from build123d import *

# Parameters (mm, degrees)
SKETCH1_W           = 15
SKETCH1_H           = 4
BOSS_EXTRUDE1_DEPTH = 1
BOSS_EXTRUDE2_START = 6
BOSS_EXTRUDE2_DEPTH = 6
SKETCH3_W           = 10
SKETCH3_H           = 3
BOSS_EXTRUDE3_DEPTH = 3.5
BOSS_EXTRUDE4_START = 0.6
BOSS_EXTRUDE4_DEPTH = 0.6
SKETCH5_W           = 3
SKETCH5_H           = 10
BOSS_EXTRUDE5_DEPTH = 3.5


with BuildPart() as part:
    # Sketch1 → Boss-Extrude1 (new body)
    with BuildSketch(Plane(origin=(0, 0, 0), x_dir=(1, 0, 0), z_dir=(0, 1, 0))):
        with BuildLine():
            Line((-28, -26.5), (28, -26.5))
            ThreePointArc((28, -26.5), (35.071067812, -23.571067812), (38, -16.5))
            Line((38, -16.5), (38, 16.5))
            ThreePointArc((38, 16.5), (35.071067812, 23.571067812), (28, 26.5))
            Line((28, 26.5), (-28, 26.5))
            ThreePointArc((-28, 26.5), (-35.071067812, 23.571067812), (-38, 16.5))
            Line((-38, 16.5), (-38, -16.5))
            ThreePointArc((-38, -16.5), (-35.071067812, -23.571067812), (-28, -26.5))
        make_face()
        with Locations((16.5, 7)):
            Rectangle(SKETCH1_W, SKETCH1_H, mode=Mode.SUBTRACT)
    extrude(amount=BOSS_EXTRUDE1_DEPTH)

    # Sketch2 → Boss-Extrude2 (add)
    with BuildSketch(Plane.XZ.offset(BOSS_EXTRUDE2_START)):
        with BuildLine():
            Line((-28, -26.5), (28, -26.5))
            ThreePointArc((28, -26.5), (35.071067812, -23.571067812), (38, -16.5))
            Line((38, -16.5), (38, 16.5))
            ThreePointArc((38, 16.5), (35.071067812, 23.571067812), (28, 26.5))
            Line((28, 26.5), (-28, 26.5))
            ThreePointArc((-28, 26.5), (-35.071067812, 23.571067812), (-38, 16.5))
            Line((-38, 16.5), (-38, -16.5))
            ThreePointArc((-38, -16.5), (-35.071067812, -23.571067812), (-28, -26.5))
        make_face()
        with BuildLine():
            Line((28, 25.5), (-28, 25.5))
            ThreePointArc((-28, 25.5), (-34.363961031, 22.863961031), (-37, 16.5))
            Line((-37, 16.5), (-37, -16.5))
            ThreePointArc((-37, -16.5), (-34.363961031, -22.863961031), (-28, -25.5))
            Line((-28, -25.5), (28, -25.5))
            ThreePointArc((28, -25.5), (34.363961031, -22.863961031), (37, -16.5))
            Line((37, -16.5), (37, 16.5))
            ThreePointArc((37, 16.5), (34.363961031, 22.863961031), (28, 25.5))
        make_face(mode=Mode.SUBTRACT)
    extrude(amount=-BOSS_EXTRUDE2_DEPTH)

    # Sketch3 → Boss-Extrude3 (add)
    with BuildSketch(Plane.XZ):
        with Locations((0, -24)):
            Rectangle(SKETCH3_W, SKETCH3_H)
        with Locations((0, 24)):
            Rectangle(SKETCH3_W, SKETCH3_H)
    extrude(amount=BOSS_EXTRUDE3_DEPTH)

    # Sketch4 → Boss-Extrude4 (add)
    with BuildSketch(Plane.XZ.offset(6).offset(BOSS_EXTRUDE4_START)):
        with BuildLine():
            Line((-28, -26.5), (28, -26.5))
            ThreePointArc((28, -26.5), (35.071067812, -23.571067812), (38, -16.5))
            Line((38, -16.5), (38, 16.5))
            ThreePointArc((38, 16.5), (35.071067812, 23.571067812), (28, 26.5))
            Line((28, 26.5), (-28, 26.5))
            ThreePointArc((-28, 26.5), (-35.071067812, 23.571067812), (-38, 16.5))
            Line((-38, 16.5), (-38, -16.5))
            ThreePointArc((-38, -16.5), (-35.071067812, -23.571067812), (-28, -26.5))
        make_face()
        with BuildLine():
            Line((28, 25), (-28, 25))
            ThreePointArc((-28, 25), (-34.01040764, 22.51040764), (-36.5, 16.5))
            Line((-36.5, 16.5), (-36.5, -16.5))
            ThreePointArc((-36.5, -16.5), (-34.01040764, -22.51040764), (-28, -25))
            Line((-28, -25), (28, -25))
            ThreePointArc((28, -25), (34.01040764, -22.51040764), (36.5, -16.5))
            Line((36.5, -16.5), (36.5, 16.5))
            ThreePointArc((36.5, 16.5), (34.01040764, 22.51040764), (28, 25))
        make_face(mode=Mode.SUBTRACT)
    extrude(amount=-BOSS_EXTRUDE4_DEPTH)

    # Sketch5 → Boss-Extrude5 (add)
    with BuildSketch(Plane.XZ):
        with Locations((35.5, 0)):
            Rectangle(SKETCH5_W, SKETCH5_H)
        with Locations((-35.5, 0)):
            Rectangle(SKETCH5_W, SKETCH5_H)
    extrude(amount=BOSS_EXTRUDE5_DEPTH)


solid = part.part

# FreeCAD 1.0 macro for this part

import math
import FreeCAD as App
import Part
import Sketcher
from FreeCAD import Vector
Q = App.Units.Quantity

doc = App.newDocument("Part")
body = doc.addObject("PartDesign::Body", "Body")

# Sketch on XZ plane
sketch1 = body.newObject("Sketcher::SketchObject", "Sketch")
sketch1.AttachmentSupport = (doc.getObject("XZ_Plane"), [""])
sketch1.MapMode = "FlatFace"
sketch1.addGeometry(Part.LineSegment(Vector(-28, 26.5, 0), Vector(28, 26.5, 0)), False)
sketch1.addGeometry(Part.ArcOfCircle(Part.Circle(Vector(28, 16.5, 0), Vector(0, 0, 1), 10), math.radians(0), math.radians(90)), False)
sketch1.addGeometry(Part.LineSegment(Vector(38, 16.5, 0), Vector(38, -16.5, 0)), False)
sketch1.addGeometry(Part.ArcOfCircle(Part.Circle(Vector(28, -16.5, 0), Vector(0, 0, 1), 10), math.radians(-90), math.radians(0)), False)
sketch1.addGeometry(Part.LineSegment(Vector(28, -26.5, 0), Vector(-28, -26.5, 0)), False)
sketch1.addGeometry(Part.ArcOfCircle(Part.Circle(Vector(-28, -16.5, 0), Vector(0, 0, 1), 10), math.radians(180), math.radians(270)), False)
sketch1.addGeometry(Part.LineSegment(Vector(-38, -16.5, 0), Vector(-38, 16.5, 0)), False)
sketch1.addGeometry(Part.ArcOfCircle(Part.Circle(Vector(-28, 16.5, 0), Vector(0, 0, 1), 10), math.radians(90), math.radians(180)), False)
sketch1.addGeometry(Part.LineSegment(Vector(24, -5, 0), Vector(9, -5, 0)), False)
sketch1.addGeometry(Part.LineSegment(Vector(9, -5, 0), Vector(9, -9, 0)), False)
sketch1.addGeometry(Part.LineSegment(Vector(9, -9, 0), Vector(24, -9, 0)), False)
sketch1.addGeometry(Part.LineSegment(Vector(24, -9, 0), Vector(24, -5, 0)), False)
sketch1.addConstraint(Sketcher.Constraint("Tangent", 0, 2, 1, 2))
sketch1.addConstraint(Sketcher.Constraint("Tangent", 1, 1, 2, 1))
sketch1.addConstraint(Sketcher.Constraint("Tangent", 2, 2, 3, 2))
sketch1.addConstraint(Sketcher.Constraint("Tangent", 3, 1, 4, 1))
sketch1.addConstraint(Sketcher.Constraint("Tangent", 4, 2, 5, 2))
sketch1.addConstraint(Sketcher.Constraint("Tangent", 5, 1, 6, 1))
sketch1.addConstraint(Sketcher.Constraint("Tangent", 6, 2, 7, 2))
sketch1.addConstraint(Sketcher.Constraint("Tangent", 7, 1, 0, 1))
sketch1.addConstraint(Sketcher.Constraint("Coincident", 8, 2, 9, 1))
sketch1.addConstraint(Sketcher.Constraint("Coincident", 9, 2, 10, 1))
sketch1.addConstraint(Sketcher.Constraint("Coincident", 10, 2, 11, 1))
sketch1.addConstraint(Sketcher.Constraint("Coincident", 11, 2, 8, 1))
sketch1.addConstraint(Sketcher.Constraint("Horizontal", 0))
sketch1.addConstraint(Sketcher.Constraint("Vertical", 2))
sketch1.addConstraint(Sketcher.Constraint("Horizontal", 4))
sketch1.addConstraint(Sketcher.Constraint("Vertical", 6))
sketch1.addConstraint(Sketcher.Constraint("Horizontal", 8))
sketch1.addConstraint(Sketcher.Constraint("Vertical", 9))
sketch1.addConstraint(Sketcher.Constraint("Horizontal", 10))
sketch1.addConstraint(Sketcher.Constraint("Vertical", 11))
sketch1.addConstraint(Sketcher.Constraint("Equal", 1, 3))
sketch1.addConstraint(Sketcher.Constraint("Equal", 3, 5))
sketch1.addConstraint(Sketcher.Constraint("Equal", 5, 7))
sketch1.addConstraint(Sketcher.Constraint("Symmetric", 1, 3, 5, 3, -1, 1))
sketch1.addConstraint(Sketcher.Constraint("Radius", 1, Q("10 mm")))
sketch1.addConstraint(Sketcher.Constraint("DistanceX", 0, 1, 0, 2, Q("56 mm")))
sketch1.addConstraint(Sketcher.Constraint("DistanceX", 8, 2, 8, 1, Q("15 mm")))
sketch1.addConstraint(Sketcher.Constraint("DistanceY", 2, 2, 2, 1, Q("33 mm")))
sketch1.addConstraint(Sketcher.Constraint("DistanceY", 9, 2, 9, 1, Q("4 mm")))
sketch1.addConstraint(Sketcher.Constraint("DistanceX", -1, 1, 8, 2, Q("9 mm")))
sketch1.addConstraint(Sketcher.Constraint("DistanceY", 8, 2, -1, 1, Q("5 mm")))
pad1 = body.newObject("PartDesign::Pad", "Pad")
pad1.Profile = sketch1
pad1.Length = 1
pad1.Reversed = True

# Sketch on XZ plane
sketch2 = body.newObject("Sketcher::SketchObject", "Sketch001")
sketch2.AttachmentSupport = (doc.getObject("XZ_Plane"), [""])
sketch2.MapMode = "FlatFace"
sketch2.AttachmentOffset = App.Placement(Vector(0, 0, 6), App.Rotation())
sketch2.addGeometry(Part.LineSegment(Vector(-28, -26, 0), Vector(28, -26, 0)), False)
sketch2.addGeometry(Part.ArcOfCircle(Part.Circle(Vector(28, -16, 0), Vector(0, 0, 1), 10), math.radians(-90), math.radians(0)), False)
sketch2.addGeometry(Part.LineSegment(Vector(38, -16, 0), Vector(38, 16, 0)), False)
sketch2.addGeometry(Part.ArcOfCircle(Part.Circle(Vector(28, 16, 0), Vector(0, 0, 1), 10), math.radians(0), math.radians(90)), False)
sketch2.addGeometry(Part.LineSegment(Vector(28, 26, 0), Vector(-28, 26, 0)), False)
sketch2.addGeometry(Part.ArcOfCircle(Part.Circle(Vector(-28, 16, 0), Vector(0, 0, 1), 10), math.radians(90), math.radians(180)), False)
sketch2.addGeometry(Part.LineSegment(Vector(-38, 16, 0), Vector(-38, -16, 0)), False)
sketch2.addGeometry(Part.ArcOfCircle(Part.Circle(Vector(-28, -16, 0), Vector(0, 0, 1), 10), math.radians(180), math.radians(270)), False)
sketch2.addGeometry(Part.LineSegment(Vector(-28, 26, 0), Vector(28, 26, 0)), False)
sketch2.addGeometry(Part.ArcOfCircle(Part.Circle(Vector(28, 17, 0), Vector(0, 0, 1), 9), math.radians(0), math.radians(90)), False)
sketch2.addGeometry(Part.LineSegment(Vector(37, 16, 0), Vector(37, -16, 0)), False)
sketch2.addGeometry(Part.ArcOfCircle(Part.Circle(Vector(28, -17, 0), Vector(0, 0, 1), 9), math.radians(-90), math.radians(0)), False)
sketch2.addGeometry(Part.LineSegment(Vector(28, -26, 0), Vector(-28, -26, 0)), False)
sketch2.addGeometry(Part.ArcOfCircle(Part.Circle(Vector(-28, -17, 0), Vector(0, 0, 1), 9), math.radians(180), math.radians(270)), False)
sketch2.addGeometry(Part.LineSegment(Vector(-37, -16, 0), Vector(-37, 16, 0)), False)
sketch2.addGeometry(Part.ArcOfCircle(Part.Circle(Vector(-28, 17, 0), Vector(0, 0, 1), 9), math.radians(90), math.radians(180)), False)
sketch2.addConstraint(Sketcher.Constraint("Tangent", 0, 2, 1, 1))
sketch2.addConstraint(Sketcher.Constraint("Tangent", 1, 2, 2, 1))
sketch2.addConstraint(Sketcher.Constraint("Tangent", 2, 2, 3, 1))
sketch2.addConstraint(Sketcher.Constraint("Tangent", 3, 2, 4, 1))
sketch2.addConstraint(Sketcher.Constraint("Tangent", 4, 2, 5, 1))
sketch2.addConstraint(Sketcher.Constraint("Tangent", 5, 2, 6, 1))
sketch2.addConstraint(Sketcher.Constraint("Tangent", 6, 2, 7, 1))
sketch2.addConstraint(Sketcher.Constraint("Tangent", 7, 2, 0, 1))
sketch2.addConstraint(Sketcher.Constraint("Tangent", 8, 2, 9, 2))
sketch2.addConstraint(Sketcher.Constraint("Tangent", 9, 1, 10, 1))
sketch2.addConstraint(Sketcher.Constraint("Tangent", 10, 2, 11, 2))
sketch2.addConstraint(Sketcher.Constraint("Tangent", 11, 1, 12, 1))
sketch2.addConstraint(Sketcher.Constraint("Tangent", 12, 2, 13, 2))
sketch2.addConstraint(Sketcher.Constraint("Tangent", 13, 1, 14, 1))
sketch2.addConstraint(Sketcher.Constraint("Tangent", 14, 2, 15, 2))
sketch2.addConstraint(Sketcher.Constraint("Tangent", 15, 1, 8, 1))
sketch2.addConstraint(Sketcher.Constraint("Horizontal", 0))
sketch2.addConstraint(Sketcher.Constraint("Vertical", 2))
sketch2.addConstraint(Sketcher.Constraint("Horizontal", 4))
sketch2.addConstraint(Sketcher.Constraint("Vertical", 6))
sketch2.addConstraint(Sketcher.Constraint("Horizontal", 8))
sketch2.addConstraint(Sketcher.Constraint("Vertical", 10))
sketch2.addConstraint(Sketcher.Constraint("Horizontal", 12))
sketch2.addConstraint(Sketcher.Constraint("Vertical", 14))
sketch2.addConstraint(Sketcher.Constraint("Coincident", 9, 3, 3, 3))
sketch2.addConstraint(Sketcher.Constraint("Coincident", 11, 3, 1, 3))
sketch2.addConstraint(Sketcher.Constraint("Coincident", 13, 3, 7, 3))
sketch2.addConstraint(Sketcher.Constraint("Equal", 1, 3))
sketch2.addConstraint(Sketcher.Constraint("Equal", 3, 5))
sketch2.addConstraint(Sketcher.Constraint("Equal", 5, 7))
sketch2.addConstraint(Sketcher.Constraint("Equal", 13, 15))
sketch2.addConstraint(Sketcher.Constraint("Symmetric", 1, 3, 5, 3, -1, 1))
sketch2.addConstraint(Sketcher.Constraint("Radius", 1, Q("10 mm")))
sketch2.addConstraint(Sketcher.Constraint("Radius", 9, Q("9 mm")))
sketch2.addConstraint(Sketcher.Constraint("DistanceX", 0, 1, 0, 2, Q("56 mm")))
sketch2.addConstraint(Sketcher.Constraint("DistanceY", 2, 1, 2, 2, Q("33 mm")))
pad2 = body.newObject("PartDesign::Pad", "Pad001")
pad2.Profile = sketch2
pad2.Length = 6
pad2.Reversed = True

# Sketch on XZ plane
sketch3 = body.newObject("Sketcher::SketchObject", "Sketch002")
sketch3.AttachmentSupport = (doc.getObject("XZ_Plane"), [""])
sketch3.MapMode = "FlatFace"
sketch3.addGeometry(Part.LineSegment(Vector(-5, -22.5, 0), Vector(-5, -25.5, 0)), False)
sketch3.addGeometry(Part.LineSegment(Vector(-5, -25.5, 0), Vector(5, -25.5, 0)), False)
sketch3.addGeometry(Part.LineSegment(Vector(5, -25.5, 0), Vector(5, -22.5, 0)), False)
sketch3.addGeometry(Part.LineSegment(Vector(5, -22.5, 0), Vector(-5, -22.5, 0)), False)
sketch3.addGeometry(Part.LineSegment(Vector(-5, 25.5, 0), Vector(-5, 22.5, 0)), False)
sketch3.addGeometry(Part.LineSegment(Vector(-5, 22.5, 0), Vector(5, 22.5, 0)), False)
sketch3.addGeometry(Part.LineSegment(Vector(5, 22.5, 0), Vector(5, 25.5, 0)), False)
sketch3.addGeometry(Part.LineSegment(Vector(5, 25.5, 0), Vector(-5, 25.5, 0)), False)
sketch3.addConstraint(Sketcher.Constraint("Coincident", 0, 2, 1, 1))
sketch3.addConstraint(Sketcher.Constraint("Coincident", 1, 2, 2, 1))
sketch3.addConstraint(Sketcher.Constraint("Coincident", 2, 2, 3, 1))
sketch3.addConstraint(Sketcher.Constraint("Coincident", 3, 2, 0, 1))
sketch3.addConstraint(Sketcher.Constraint("Coincident", 4, 2, 5, 1))
sketch3.addConstraint(Sketcher.Constraint("Coincident", 5, 2, 6, 1))
sketch3.addConstraint(Sketcher.Constraint("Coincident", 6, 2, 7, 1))
sketch3.addConstraint(Sketcher.Constraint("Coincident", 7, 2, 4, 1))
sketch3.addConstraint(Sketcher.Constraint("Vertical", 0))
sketch3.addConstraint(Sketcher.Constraint("Horizontal", 1))
sketch3.addConstraint(Sketcher.Constraint("Vertical", 2))
sketch3.addConstraint(Sketcher.Constraint("Horizontal", 3))
sketch3.addConstraint(Sketcher.Constraint("Vertical", 4))
sketch3.addConstraint(Sketcher.Constraint("Horizontal", 5))
sketch3.addConstraint(Sketcher.Constraint("Vertical", 6))
sketch3.addConstraint(Sketcher.Constraint("Horizontal", 7))
sketch3.addConstraint(Sketcher.Constraint("Symmetric", 2, 2, 4, 2, -1, 1))
sketch3.addConstraint(Sketcher.Constraint("Symmetric", 0, 2, 6, 2, -1, 1))
sketch3.addConstraint(Sketcher.Constraint("Vertical", 3, 2, 4, 2))
sketch3.addConstraint(Sketcher.Constraint("DistanceX", 1, 1, 1, 2, Q("10 mm")))
sketch3.addConstraint(Sketcher.Constraint("DistanceY", 0, 2, 0, 1, Q("3 mm")))
sketch3.addConstraint(Sketcher.Constraint("DistanceY", 3, 2, 4, 2, Q("45 mm")))
pad3 = body.newObject("PartDesign::Pad", "Pad002")
pad3.Profile = sketch3
pad3.Length = 3.5

# Sketch on XZ plane
sketch4 = body.newObject("Sketcher::SketchObject", "Sketch003")
sketch4.AttachmentSupport = (doc.getObject("XZ_Plane"), [""])
sketch4.MapMode = "FlatFace"
sketch4.AttachmentOffset = App.Placement(Vector(0, 0, 6.6), App.Rotation())
sketch4.addGeometry(Part.LineSegment(Vector(-28, -26, 0), Vector(28, -26, 0)), False)
sketch4.addGeometry(Part.ArcOfCircle(Part.Circle(Vector(28, -16, 0), Vector(0, 0, 1), 10), math.radians(-90), math.radians(0)), False)
sketch4.addGeometry(Part.LineSegment(Vector(38, -16, 0), Vector(38, 16, 0)), False)
sketch4.addGeometry(Part.ArcOfCircle(Part.Circle(Vector(28, 16, 0), Vector(0, 0, 1), 10), math.radians(0), math.radians(90)), False)
sketch4.addGeometry(Part.LineSegment(Vector(28, 26, 0), Vector(-28, 26, 0)), False)
sketch4.addGeometry(Part.ArcOfCircle(Part.Circle(Vector(-28, 16, 0), Vector(0, 0, 1), 10), math.radians(90), math.radians(180)), False)
sketch4.addGeometry(Part.LineSegment(Vector(-38, 16, 0), Vector(-38, -16, 0)), False)
sketch4.addGeometry(Part.ArcOfCircle(Part.Circle(Vector(-28, -16, 0), Vector(0, 0, 1), 10), math.radians(180), math.radians(270)), False)
sketch4.addGeometry(Part.LineSegment(Vector(-28, 25, 0), Vector(28, 25, 0)), False)
sketch4.addGeometry(Part.ArcOfCircle(Part.Circle(Vector(28, 16, 0), Vector(0, 0, 1), 8), math.radians(0), math.radians(90)), False)
sketch4.addGeometry(Part.LineSegment(Vector(36, 16, 0), Vector(36, -16, 0)), False)
sketch4.addGeometry(Part.ArcOfCircle(Part.Circle(Vector(28, -16, 0), Vector(0, 0, 1), 8), math.radians(-90), math.radians(0)), False)
sketch4.addGeometry(Part.LineSegment(Vector(28, -25, 0), Vector(-28, -25, 0)), False)
sketch4.addGeometry(Part.ArcOfCircle(Part.Circle(Vector(-28, -16, 0), Vector(0, 0, 1), 8), math.radians(180), math.radians(270)), False)
sketch4.addGeometry(Part.LineSegment(Vector(-36, -16, 0), Vector(-36, 16, 0)), False)
sketch4.addGeometry(Part.ArcOfCircle(Part.Circle(Vector(-28, 16, 0), Vector(0, 0, 1), 8), math.radians(90), math.radians(180)), False)
sketch4.addConstraint(Sketcher.Constraint("Tangent", 0, 2, 1, 1))
sketch4.addConstraint(Sketcher.Constraint("Tangent", 1, 2, 2, 1))
sketch4.addConstraint(Sketcher.Constraint("Tangent", 2, 2, 3, 1))
sketch4.addConstraint(Sketcher.Constraint("Tangent", 3, 2, 4, 1))
sketch4.addConstraint(Sketcher.Constraint("Tangent", 4, 2, 5, 1))
sketch4.addConstraint(Sketcher.Constraint("Tangent", 5, 2, 6, 1))
sketch4.addConstraint(Sketcher.Constraint("Tangent", 6, 2, 7, 1))
sketch4.addConstraint(Sketcher.Constraint("Tangent", 7, 2, 0, 1))
sketch4.addConstraint(Sketcher.Constraint("Tangent", 8, 2, 9, 2))
sketch4.addConstraint(Sketcher.Constraint("Tangent", 9, 1, 10, 1))
sketch4.addConstraint(Sketcher.Constraint("Tangent", 10, 2, 11, 2))
sketch4.addConstraint(Sketcher.Constraint("Tangent", 11, 1, 12, 1))
sketch4.addConstraint(Sketcher.Constraint("Tangent", 12, 2, 13, 2))
sketch4.addConstraint(Sketcher.Constraint("Tangent", 13, 1, 14, 1))
sketch4.addConstraint(Sketcher.Constraint("Tangent", 14, 2, 15, 2))
sketch4.addConstraint(Sketcher.Constraint("Tangent", 15, 1, 8, 1))
sketch4.addConstraint(Sketcher.Constraint("Horizontal", 0))
sketch4.addConstraint(Sketcher.Constraint("Vertical", 2))
sketch4.addConstraint(Sketcher.Constraint("Horizontal", 4))
sketch4.addConstraint(Sketcher.Constraint("Vertical", 6))
sketch4.addConstraint(Sketcher.Constraint("Horizontal", 8))
sketch4.addConstraint(Sketcher.Constraint("Vertical", 10))
sketch4.addConstraint(Sketcher.Constraint("Horizontal", 12))
sketch4.addConstraint(Sketcher.Constraint("Vertical", 14))
sketch4.addConstraint(Sketcher.Constraint("Coincident", 9, 3, 3, 3))
sketch4.addConstraint(Sketcher.Constraint("Coincident", 11, 3, 1, 3))
sketch4.addConstraint(Sketcher.Constraint("Coincident", 13, 3, 7, 3))
sketch4.addConstraint(Sketcher.Constraint("Equal", 1, 3))
sketch4.addConstraint(Sketcher.Constraint("Equal", 3, 5))
sketch4.addConstraint(Sketcher.Constraint("Equal", 5, 7))
sketch4.addConstraint(Sketcher.Constraint("Equal", 13, 15))
sketch4.addConstraint(Sketcher.Constraint("Symmetric", 1, 3, 5, 3, -1, 1))
sketch4.addConstraint(Sketcher.Constraint("Radius", 1, Q("10 mm")))
sketch4.addConstraint(Sketcher.Constraint("Radius", 9, Q("8.5 mm")))
sketch4.addConstraint(Sketcher.Constraint("DistanceX", 0, 1, 0, 2, Q("56 mm")))
sketch4.addConstraint(Sketcher.Constraint("DistanceY", 2, 1, 2, 2, Q("33 mm")))
pad4 = body.newObject("PartDesign::Pad", "Pad003")
pad4.Profile = sketch4
pad4.Length = 0.6
pad4.Reversed = True

# Sketch on XZ plane
sketch5 = body.newObject("Sketcher::SketchObject", "Sketch004")
sketch5.AttachmentSupport = (doc.getObject("XZ_Plane"), [""])
sketch5.MapMode = "FlatFace"
sketch5.addGeometry(Part.LineSegment(Vector(34, 5, 0), Vector(34, -5, 0)), False)
sketch5.addGeometry(Part.LineSegment(Vector(34, -5, 0), Vector(37, -5, 0)), False)
sketch5.addGeometry(Part.LineSegment(Vector(37, -5, 0), Vector(37, 5, 0)), False)
sketch5.addGeometry(Part.LineSegment(Vector(37, 5, 0), Vector(34, 5, 0)), False)
sketch5.addGeometry(Part.LineSegment(Vector(-37, 5, 0), Vector(-37, -5, 0)), False)
sketch5.addGeometry(Part.LineSegment(Vector(-37, -5, 0), Vector(-34, -5, 0)), False)
sketch5.addGeometry(Part.LineSegment(Vector(-34, -5, 0), Vector(-34, 5, 0)), False)
sketch5.addGeometry(Part.LineSegment(Vector(-34, 5, 0), Vector(-37, 5, 0)), False)
sketch5.addConstraint(Sketcher.Constraint("Coincident", 0, 2, 1, 1))
sketch5.addConstraint(Sketcher.Constraint("Coincident", 1, 2, 2, 1))
sketch5.addConstraint(Sketcher.Constraint("Coincident", 2, 2, 3, 1))
sketch5.addConstraint(Sketcher.Constraint("Coincident", 3, 2, 0, 1))
sketch5.addConstraint(Sketcher.Constraint("Coincident", 4, 2, 5, 1))
sketch5.addConstraint(Sketcher.Constraint("Coincident", 5, 2, 6, 1))
sketch5.addConstraint(Sketcher.Constraint("Coincident", 6, 2, 7, 1))
sketch5.addConstraint(Sketcher.Constraint("Coincident", 7, 2, 4, 1))
sketch5.addConstraint(Sketcher.Constraint("Vertical", 0))
sketch5.addConstraint(Sketcher.Constraint("Horizontal", 1))
sketch5.addConstraint(Sketcher.Constraint("Vertical", 2))
sketch5.addConstraint(Sketcher.Constraint("Horizontal", 3))
sketch5.addConstraint(Sketcher.Constraint("Vertical", 4))
sketch5.addConstraint(Sketcher.Constraint("Horizontal", 5))
sketch5.addConstraint(Sketcher.Constraint("Vertical", 6))
sketch5.addConstraint(Sketcher.Constraint("Horizontal", 7))
sketch5.addConstraint(Sketcher.Constraint("Symmetric", 2, 2, 4, 2, -1, 1))
sketch5.addConstraint(Sketcher.Constraint("Symmetric", 0, 2, 6, 2, -1, 1))
sketch5.addConstraint(Sketcher.Constraint("Horizontal", 1, 2, 4, 2))
sketch5.addConstraint(Sketcher.Constraint("DistanceX", 1, 1, 1, 2, Q("3 mm")))
sketch5.addConstraint(Sketcher.Constraint("DistanceY", 0, 2, 0, 1, Q("10 mm")))
sketch5.addConstraint(Sketcher.Constraint("DistanceX", -1, 1, 0, 2, Q("34 mm")))
pad5 = body.newObject("PartDesign::Pad", "Pad004")
pad5.Profile = sketch5
pad5.Length = 3.5

doc.recompute()
